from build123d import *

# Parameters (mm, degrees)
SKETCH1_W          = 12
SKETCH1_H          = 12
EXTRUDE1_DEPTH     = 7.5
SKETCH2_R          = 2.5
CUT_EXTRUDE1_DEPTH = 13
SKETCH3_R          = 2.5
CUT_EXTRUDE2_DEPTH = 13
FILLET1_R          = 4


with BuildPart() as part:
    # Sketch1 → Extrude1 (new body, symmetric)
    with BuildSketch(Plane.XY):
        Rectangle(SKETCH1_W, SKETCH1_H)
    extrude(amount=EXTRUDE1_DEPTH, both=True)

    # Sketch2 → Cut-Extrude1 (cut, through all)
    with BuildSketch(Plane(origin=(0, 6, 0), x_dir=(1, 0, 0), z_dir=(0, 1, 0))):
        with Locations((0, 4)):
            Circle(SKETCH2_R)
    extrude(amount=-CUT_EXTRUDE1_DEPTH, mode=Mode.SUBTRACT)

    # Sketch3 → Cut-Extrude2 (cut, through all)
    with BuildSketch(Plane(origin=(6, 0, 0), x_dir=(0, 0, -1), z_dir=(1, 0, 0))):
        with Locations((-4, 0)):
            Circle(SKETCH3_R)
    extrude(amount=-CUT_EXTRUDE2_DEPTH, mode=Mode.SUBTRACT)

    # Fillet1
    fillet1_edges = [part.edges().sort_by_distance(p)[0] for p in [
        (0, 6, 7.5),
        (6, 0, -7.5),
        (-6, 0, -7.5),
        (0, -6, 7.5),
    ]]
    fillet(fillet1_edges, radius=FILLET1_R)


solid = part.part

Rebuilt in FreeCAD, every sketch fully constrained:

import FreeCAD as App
import Part
import Sketcher
from FreeCAD import Vector


def edges_at(feature, points):
    """Names of the edges that pass closest to the given points."""
    edges = feature.Shape.Edges
    near = lambda p: min(range(len(edges)), key=lambda i: edges[i].distToShape(Part.Vertex(*p))[0])
    return sorted({f"Edge{near(p) + 1}" for p in points})


def add_polygon(sketch, points):
    """Adds a closed chain of lines whose ends are joined by coincident constraints."""
    first, n = sketch.GeometryCount, len(points)
    for a, b in zip(points, points[1:] + points[:1]):
        sketch.addGeometry(Part.LineSegment(App.Vector(*a, 0), App.Vector(*b, 0)), False)
    for i in range(n):
        sketch.addConstraint(Sketcher.Constraint("Coincident", first + i, 2, first + (i + 1) % n, 1))

doc = App.newDocument("Part")
body = doc.addObject("PartDesign::Body", "Body")

# Sketch on XY plane
sketch1 = doc.addObject("Sketcher::SketchObject", "Sketch")
body.addObject(sketch1)
sketch1.AttachmentSupport = (doc.XY_Plane, [""])
sketch1.MapMode = "FlatFace"
add_polygon(sketch1, [(-6, 6), (-6, -6), (6, -6), (6, 6)])  # lines 0-3
sketch1.addConstraint([
    Sketcher.Constraint("Vertical", 0),
    Sketcher.Constraint("Horizontal", 1),
    Sketcher.Constraint("Vertical", 2),
    Sketcher.Constraint("Horizontal", 3),
    Sketcher.Constraint("Symmetric", 0, 2, 2, 2, -1, 1),
    Sketcher.Constraint("Equal", 3, 0),
    Sketcher.Constraint("DistanceX", 1, 1, 1, 2, 12.0),
])
pad1 = doc.addObject("PartDesign::Pad", "Pad")
body.addObject(pad1)
pad1.Profile = sketch1
pad1.Length = 15
pad1.Midplane = True

# Sketch on XZ plane
sketch2 = doc.addObject("Sketcher::SketchObject", "Sketch001")
body.addObject(sketch2)
sketch2.AttachmentSupport = (doc.XZ_Plane, [""])
sketch2.MapMode = "FlatFace"
sketch2.AttachmentOffset = App.Placement(Vector(0, 0, -6), App.Rotation())
sketch2.addGeometry(Part.Circle(Vector(0, -4, 0), Vector(0, 0, 1), 2.5), False)
sketch2.addConstraint([
    Sketcher.Constraint("PointOnObject", 0, 3, -2),
    Sketcher.Constraint("Diameter", 0, 5.0),
    Sketcher.Constraint("DistanceY", 0, 3, -1, 1, 4.0),
])
pocket1 = doc.addObject("PartDesign::Pocket", "Pocket")
body.addObject(pocket1)
pocket1.Profile = sketch2
pocket1.Type = "ThroughAll"
pocket1.Reversed = True

# Sketch on YZ plane
sketch3 = doc.addObject("Sketcher::SketchObject", "Sketch002")
body.addObject(sketch3)
sketch3.AttachmentSupport = (doc.YZ_Plane, [""])
sketch3.MapMode = "FlatFace"
sketch3.AttachmentOffset = App.Placement(Vector(0, 0, 6), App.Rotation())
sketch3.addGeometry(Part.Circle(Vector(0, 4, 0), Vector(0, 0, 1), 2.5), False)
sketch3.addConstraint([
    Sketcher.Constraint("PointOnObject", 0, 3, -2),
    Sketcher.Constraint("Diameter", 0, 5.0),
    Sketcher.Constraint("DistanceY", -1, 1, 0, 3, 4.0),
])
pocket2 = doc.addObject("PartDesign::Pocket", "Pocket001")
body.addObject(pocket2)
pocket2.Profile = sketch3
pocket2.Type = "ThroughAll"
doc.recompute()

fillet = doc.addObject("PartDesign::Fillet", "Fillet")
body.addObject(fillet)
fillet.Base = (pocket2, edges_at(pocket2, [
    (0, 6, 7.5),
    (6, 0, -7.5),
    (-6, 0, -7.5),
    (0, -6, 7.5),
]))
fillet.Radius = 4

doc.recompute()
